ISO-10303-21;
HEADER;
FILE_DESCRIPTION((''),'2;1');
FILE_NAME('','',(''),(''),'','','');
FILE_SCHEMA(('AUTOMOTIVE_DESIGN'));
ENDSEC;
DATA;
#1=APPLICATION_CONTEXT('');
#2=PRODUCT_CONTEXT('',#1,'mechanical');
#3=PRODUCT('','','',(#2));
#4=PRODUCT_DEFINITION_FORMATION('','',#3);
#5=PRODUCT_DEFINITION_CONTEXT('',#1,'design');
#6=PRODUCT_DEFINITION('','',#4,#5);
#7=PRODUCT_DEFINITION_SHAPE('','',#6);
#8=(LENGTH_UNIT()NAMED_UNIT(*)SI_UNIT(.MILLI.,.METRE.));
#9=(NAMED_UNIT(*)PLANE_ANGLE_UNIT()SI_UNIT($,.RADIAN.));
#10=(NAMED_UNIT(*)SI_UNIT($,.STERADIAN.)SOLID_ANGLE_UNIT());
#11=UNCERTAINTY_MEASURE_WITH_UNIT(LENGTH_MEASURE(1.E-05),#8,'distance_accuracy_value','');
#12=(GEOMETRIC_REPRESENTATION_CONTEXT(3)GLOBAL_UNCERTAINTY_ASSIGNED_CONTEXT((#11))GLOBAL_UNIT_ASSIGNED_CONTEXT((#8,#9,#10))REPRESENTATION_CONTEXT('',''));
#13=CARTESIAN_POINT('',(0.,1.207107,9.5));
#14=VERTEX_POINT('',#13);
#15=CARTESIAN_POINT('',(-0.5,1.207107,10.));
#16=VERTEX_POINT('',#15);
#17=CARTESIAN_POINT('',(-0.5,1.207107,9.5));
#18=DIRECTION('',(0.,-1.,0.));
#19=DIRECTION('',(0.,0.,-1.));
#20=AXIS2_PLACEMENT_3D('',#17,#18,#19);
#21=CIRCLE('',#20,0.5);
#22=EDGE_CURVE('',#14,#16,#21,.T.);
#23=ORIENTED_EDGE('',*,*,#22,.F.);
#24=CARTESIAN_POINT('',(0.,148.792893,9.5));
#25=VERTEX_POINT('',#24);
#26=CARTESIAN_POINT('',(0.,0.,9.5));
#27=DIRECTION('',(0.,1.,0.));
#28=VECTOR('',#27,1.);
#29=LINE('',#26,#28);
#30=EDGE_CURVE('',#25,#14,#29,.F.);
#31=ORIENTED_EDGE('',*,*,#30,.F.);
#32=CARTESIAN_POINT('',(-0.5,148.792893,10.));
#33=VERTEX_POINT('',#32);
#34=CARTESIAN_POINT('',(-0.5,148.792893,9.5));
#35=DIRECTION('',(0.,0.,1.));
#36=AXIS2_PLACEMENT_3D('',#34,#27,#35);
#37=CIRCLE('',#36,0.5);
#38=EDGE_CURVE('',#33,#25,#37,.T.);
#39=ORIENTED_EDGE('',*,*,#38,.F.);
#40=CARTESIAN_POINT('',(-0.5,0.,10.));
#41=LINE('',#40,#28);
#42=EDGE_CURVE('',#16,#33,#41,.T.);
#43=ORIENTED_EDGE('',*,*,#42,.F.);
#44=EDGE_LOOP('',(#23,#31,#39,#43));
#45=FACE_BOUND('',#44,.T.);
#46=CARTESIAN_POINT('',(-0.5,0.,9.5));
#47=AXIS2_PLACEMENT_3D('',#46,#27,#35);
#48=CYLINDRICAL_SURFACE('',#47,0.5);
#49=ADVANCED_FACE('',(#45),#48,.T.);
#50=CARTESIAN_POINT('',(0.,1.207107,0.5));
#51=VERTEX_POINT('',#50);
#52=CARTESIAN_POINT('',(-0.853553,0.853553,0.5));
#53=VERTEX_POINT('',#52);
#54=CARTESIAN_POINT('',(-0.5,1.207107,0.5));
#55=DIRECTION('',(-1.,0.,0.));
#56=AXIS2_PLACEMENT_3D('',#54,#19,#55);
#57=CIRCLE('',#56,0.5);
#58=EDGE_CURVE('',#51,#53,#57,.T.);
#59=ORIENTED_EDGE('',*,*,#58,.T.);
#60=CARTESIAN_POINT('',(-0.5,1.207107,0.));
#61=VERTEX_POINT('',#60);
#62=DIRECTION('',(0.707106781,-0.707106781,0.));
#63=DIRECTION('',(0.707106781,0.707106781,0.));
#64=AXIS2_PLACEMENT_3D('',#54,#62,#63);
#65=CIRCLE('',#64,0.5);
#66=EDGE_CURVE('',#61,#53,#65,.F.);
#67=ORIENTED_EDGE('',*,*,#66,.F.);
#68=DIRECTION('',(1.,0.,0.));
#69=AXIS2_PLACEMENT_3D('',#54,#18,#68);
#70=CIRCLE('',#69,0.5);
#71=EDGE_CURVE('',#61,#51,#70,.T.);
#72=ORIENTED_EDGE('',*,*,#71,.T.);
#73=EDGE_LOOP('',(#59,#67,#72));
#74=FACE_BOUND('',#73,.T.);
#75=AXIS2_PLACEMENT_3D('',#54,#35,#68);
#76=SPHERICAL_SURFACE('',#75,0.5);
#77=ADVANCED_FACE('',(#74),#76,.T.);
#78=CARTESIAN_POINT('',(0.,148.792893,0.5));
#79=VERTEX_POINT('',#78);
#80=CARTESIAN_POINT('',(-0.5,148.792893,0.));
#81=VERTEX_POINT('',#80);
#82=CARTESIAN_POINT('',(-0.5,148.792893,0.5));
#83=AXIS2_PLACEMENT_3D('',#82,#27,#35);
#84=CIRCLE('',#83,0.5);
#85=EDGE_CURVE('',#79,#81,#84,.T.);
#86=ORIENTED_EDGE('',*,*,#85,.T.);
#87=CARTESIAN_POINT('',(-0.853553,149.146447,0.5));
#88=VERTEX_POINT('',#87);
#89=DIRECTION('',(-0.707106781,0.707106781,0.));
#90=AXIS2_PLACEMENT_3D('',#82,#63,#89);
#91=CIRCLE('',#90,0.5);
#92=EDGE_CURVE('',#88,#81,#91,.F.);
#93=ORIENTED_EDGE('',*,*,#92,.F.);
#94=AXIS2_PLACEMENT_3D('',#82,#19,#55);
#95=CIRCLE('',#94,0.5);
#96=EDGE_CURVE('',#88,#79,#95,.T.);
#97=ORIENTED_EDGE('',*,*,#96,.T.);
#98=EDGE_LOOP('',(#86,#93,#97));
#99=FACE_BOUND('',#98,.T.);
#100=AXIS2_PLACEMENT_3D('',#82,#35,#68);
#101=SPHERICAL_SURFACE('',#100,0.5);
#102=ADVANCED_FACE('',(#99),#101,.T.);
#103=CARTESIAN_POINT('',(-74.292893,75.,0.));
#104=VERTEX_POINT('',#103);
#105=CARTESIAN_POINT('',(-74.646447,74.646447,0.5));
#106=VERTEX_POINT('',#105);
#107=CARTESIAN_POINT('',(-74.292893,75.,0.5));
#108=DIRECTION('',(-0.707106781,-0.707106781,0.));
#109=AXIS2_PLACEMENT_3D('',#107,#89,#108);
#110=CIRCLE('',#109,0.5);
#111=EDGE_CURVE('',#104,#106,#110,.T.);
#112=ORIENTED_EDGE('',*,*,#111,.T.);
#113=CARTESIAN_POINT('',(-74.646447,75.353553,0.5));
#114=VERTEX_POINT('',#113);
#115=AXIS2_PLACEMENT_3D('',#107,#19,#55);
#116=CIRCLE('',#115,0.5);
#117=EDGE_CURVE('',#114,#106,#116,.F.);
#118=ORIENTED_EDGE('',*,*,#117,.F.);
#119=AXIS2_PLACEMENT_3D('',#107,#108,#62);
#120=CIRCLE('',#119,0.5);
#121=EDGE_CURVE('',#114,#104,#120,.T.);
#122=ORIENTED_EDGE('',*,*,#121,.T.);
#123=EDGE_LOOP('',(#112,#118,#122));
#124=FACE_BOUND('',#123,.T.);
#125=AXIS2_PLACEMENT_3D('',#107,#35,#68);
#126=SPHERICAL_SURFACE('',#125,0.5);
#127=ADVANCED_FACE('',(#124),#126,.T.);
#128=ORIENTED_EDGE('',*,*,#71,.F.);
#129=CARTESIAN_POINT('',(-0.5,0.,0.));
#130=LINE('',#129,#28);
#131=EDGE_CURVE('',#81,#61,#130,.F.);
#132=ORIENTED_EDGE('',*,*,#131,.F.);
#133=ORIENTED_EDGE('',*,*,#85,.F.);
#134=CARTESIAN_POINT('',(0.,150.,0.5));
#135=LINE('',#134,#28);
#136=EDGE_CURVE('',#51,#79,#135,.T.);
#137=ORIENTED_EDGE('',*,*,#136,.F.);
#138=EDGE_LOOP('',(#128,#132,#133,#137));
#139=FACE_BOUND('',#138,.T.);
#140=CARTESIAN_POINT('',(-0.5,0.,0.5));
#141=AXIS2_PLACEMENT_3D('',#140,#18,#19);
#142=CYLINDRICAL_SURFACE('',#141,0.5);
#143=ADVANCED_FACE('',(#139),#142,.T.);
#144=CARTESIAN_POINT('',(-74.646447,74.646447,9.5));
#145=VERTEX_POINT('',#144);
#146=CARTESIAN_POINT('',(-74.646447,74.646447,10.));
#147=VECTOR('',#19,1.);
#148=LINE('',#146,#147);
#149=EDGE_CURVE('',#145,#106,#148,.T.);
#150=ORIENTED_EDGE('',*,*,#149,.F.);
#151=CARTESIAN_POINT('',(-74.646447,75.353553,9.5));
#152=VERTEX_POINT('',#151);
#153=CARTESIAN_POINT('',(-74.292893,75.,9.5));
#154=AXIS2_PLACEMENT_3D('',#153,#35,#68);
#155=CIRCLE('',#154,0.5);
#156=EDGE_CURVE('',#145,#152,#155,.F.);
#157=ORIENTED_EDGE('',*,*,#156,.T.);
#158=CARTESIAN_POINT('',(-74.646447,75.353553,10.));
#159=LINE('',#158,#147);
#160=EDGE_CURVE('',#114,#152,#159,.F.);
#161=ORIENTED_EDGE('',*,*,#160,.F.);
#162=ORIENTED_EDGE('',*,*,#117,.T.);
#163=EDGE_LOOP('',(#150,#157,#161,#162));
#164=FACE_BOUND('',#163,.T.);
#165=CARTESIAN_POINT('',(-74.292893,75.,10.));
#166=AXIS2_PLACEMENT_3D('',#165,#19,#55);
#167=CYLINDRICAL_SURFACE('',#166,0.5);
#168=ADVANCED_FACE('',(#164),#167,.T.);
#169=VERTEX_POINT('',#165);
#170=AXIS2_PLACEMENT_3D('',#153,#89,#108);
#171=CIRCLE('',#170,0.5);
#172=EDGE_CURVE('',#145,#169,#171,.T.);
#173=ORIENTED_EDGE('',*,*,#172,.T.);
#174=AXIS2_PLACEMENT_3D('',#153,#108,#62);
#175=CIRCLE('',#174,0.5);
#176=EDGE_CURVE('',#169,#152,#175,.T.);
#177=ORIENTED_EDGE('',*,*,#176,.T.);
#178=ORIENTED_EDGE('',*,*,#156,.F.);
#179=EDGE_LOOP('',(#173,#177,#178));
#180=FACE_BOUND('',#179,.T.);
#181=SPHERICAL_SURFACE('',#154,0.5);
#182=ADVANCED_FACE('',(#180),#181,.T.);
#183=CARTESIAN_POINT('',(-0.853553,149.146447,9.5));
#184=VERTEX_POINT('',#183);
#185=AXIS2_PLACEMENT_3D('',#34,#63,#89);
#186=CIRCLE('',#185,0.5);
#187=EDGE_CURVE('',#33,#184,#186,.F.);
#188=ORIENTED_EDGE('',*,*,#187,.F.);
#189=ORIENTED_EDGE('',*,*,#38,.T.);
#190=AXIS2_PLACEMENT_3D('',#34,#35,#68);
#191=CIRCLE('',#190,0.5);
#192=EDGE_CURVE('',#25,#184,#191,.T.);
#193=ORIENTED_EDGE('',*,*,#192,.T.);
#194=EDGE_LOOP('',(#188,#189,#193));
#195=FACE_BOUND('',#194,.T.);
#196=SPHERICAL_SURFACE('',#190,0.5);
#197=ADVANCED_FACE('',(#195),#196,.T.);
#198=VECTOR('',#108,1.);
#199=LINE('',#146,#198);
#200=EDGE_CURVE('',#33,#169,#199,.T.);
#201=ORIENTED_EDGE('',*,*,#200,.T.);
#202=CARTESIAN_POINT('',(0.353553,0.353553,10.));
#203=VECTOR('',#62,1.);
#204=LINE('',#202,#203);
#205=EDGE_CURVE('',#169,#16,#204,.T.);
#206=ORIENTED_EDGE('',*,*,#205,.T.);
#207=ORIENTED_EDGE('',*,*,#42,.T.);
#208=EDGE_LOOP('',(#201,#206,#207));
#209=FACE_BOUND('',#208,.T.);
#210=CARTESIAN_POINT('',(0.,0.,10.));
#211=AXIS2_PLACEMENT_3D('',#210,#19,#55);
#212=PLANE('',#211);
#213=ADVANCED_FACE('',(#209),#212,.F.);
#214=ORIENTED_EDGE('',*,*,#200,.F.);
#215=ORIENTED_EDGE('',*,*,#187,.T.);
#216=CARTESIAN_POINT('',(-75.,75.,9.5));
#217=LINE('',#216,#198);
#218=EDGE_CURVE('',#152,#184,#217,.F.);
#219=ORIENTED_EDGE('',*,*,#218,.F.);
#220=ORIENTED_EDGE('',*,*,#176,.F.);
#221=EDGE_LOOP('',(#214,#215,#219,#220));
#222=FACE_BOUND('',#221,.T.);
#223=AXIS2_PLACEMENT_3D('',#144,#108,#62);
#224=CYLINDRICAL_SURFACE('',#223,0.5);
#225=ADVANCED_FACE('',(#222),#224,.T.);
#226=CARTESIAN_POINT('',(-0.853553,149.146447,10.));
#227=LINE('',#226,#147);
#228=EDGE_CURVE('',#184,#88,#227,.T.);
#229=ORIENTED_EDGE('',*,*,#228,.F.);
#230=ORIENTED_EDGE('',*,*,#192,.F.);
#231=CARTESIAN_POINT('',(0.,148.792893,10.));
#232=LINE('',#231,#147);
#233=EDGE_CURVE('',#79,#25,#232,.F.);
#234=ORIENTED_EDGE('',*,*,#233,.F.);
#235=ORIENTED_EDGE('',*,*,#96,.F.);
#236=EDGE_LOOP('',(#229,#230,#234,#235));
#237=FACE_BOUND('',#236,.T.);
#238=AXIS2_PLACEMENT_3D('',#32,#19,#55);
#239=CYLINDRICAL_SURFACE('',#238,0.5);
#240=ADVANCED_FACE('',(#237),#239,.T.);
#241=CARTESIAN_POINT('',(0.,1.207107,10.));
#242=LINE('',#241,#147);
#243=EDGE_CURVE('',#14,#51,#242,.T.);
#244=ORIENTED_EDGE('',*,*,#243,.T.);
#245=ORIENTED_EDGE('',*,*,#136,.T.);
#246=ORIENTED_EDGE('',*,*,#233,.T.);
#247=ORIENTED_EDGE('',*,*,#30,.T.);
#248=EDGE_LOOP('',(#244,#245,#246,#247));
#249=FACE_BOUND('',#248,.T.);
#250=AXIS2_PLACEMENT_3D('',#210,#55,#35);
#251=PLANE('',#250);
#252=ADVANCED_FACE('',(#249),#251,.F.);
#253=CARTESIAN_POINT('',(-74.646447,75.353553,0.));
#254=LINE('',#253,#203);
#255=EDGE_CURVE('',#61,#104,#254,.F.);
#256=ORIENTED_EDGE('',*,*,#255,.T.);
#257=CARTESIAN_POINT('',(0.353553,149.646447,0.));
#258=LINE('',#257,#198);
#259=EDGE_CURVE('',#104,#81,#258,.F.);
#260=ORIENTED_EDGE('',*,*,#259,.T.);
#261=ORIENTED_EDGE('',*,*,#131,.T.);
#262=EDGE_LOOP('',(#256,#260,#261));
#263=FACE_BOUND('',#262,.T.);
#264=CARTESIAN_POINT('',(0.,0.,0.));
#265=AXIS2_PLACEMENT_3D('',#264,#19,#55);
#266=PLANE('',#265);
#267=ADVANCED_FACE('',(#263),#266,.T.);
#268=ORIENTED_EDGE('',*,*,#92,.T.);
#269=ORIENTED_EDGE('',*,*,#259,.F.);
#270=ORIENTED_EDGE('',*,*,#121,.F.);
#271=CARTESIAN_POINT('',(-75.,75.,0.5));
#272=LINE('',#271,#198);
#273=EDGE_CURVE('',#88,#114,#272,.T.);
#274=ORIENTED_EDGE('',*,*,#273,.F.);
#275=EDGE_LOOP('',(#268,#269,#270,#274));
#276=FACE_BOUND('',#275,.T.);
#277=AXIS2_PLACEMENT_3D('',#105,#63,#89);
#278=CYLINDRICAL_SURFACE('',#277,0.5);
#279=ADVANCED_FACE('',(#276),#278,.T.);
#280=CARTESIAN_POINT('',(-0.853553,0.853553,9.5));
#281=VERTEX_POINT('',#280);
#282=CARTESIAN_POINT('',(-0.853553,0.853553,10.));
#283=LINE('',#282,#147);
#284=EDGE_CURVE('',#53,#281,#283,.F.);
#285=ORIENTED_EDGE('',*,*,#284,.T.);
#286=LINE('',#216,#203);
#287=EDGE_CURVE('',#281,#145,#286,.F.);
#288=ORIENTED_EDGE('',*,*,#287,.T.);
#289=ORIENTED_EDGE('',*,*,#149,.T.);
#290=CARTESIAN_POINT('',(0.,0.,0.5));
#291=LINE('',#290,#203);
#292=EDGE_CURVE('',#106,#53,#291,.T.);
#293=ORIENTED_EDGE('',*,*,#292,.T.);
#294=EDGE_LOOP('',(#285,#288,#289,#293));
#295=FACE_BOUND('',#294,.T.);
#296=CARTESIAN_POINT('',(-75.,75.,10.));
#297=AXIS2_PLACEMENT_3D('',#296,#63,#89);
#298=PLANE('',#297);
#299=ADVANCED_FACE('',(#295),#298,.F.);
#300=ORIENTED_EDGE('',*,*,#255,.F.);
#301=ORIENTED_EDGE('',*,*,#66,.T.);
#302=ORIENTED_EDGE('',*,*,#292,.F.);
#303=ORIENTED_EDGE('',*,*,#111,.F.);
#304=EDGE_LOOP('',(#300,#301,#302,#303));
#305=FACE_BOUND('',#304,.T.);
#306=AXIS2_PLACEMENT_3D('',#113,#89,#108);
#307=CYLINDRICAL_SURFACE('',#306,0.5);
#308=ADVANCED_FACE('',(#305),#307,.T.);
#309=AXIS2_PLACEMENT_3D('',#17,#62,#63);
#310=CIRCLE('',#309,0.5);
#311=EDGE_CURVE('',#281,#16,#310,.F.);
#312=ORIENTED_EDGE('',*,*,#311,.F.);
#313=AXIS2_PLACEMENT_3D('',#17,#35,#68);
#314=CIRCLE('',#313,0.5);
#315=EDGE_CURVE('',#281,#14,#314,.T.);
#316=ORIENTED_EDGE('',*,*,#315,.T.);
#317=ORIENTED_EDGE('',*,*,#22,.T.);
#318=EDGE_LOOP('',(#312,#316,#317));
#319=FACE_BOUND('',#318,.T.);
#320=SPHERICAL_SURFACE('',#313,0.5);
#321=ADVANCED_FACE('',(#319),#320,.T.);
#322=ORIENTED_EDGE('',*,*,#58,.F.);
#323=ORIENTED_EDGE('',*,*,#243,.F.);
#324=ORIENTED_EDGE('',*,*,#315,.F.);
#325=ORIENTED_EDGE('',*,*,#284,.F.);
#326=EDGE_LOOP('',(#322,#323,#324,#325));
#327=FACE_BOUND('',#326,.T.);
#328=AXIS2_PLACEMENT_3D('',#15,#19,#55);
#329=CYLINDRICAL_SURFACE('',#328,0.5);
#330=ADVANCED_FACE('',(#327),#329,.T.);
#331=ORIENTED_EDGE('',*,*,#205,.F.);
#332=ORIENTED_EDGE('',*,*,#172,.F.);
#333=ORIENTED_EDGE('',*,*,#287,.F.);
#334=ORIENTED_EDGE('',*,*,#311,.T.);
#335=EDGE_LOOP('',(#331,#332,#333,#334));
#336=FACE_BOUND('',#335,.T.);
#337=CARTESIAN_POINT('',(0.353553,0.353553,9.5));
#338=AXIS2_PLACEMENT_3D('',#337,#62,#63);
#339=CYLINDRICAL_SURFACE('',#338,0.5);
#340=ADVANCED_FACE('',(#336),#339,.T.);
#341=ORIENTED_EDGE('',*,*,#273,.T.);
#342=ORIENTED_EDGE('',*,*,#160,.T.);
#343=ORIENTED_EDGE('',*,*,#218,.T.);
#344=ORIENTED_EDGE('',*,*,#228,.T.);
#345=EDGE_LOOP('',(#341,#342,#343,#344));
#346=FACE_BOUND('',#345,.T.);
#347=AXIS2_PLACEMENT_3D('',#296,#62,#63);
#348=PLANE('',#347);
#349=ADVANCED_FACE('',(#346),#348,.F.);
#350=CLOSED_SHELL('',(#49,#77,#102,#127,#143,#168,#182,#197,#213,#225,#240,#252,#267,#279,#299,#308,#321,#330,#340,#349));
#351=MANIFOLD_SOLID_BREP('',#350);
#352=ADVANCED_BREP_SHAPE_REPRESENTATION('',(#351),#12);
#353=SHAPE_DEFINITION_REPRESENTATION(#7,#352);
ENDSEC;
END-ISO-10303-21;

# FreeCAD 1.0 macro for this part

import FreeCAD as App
import Part
import Sketcher
from FreeCAD import Vector


def add_polygon(sketch, points):
    """Adds a closed chain of lines whose ends are joined by coincident constraints."""
    first, n = sketch.GeometryCount, len(points)
    for a, b in zip(points, points[1:] + points[:1]):
        sketch.addGeometry(Part.LineSegment(App.Vector(*a, 0), App.Vector(*b, 0)), False)
    for i in range(n):
        sketch.addConstraint(Sketcher.Constraint("Coincident", first + i, 2, first + (i + 1) % n, 1))

doc = App.newDocument("Part")
body = doc.addObject("PartDesign::Body", "Body")

sketch1 = doc.addObject("Sketcher::SketchObject", "Sketch")
body.addObject(sketch1)
sketch1.AttachmentSupport = (doc.XY_Plane, [""])
sketch1.MapMode = "FlatFace"
add_polygon(sketch1, [(0, 0), (0, 150), (-75, 75)])
sketch1.addConstraint([
    Sketcher.Constraint("Vertical", 0),
    Sketcher.Constraint("Coincident", 2, 2, -1, 1),
    Sketcher.Constraint("Perpendicular", 1, 2),
    Sketcher.Constraint("Equal", 1, 2),
    Sketcher.Constraint("DistanceY", 0, 1, 0, 2, 150.0),
])
pad1 = doc.addObject("PartDesign::Pad", "Pad")
body.addObject(pad1)
pad1.Profile = sketch1
pad1.Length = 10
doc.recompute()

fillet = doc.addObject("PartDesign::Fillet", "Fillet")
body.addObject(fillet)
fillet.Base = (pad1, ["Edge1"])
fillet.UseAllEdges = True
fillet.Radius = 0.5

doc.recompute()
